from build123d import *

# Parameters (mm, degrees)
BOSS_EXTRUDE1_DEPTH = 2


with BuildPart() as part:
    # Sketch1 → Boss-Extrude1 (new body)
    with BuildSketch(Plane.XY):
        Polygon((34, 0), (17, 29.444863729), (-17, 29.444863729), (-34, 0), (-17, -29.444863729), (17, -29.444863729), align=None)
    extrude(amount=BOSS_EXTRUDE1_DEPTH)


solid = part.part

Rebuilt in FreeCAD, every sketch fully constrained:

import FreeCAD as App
import Part
import Sketcher
Q = App.Units.Quantity


def add_polygon(sketch, points):
    """Adds a closed chain of lines whose ends are joined by coincident constraints."""
    first, n = sketch.GeometryCount, len(points)
    for a, b in zip(points, points[1:] + points[:1]):
        sketch.addGeometry(Part.LineSegment(App.Vector(*a, 0), App.Vector(*b, 0)), False)
    for i in range(n):
        sketch.addConstraint(Sketcher.Constraint("Coincident", first + i, 2, first + (i + 1) % n, 1))

doc = App.newDocument("Part")
body = doc.addObject("PartDesign::Body", "Body")

# Sketch on XY plane
sketch1 = body.newObject("Sketcher::SketchObject", "Sketch")
sketch1.AttachmentSupport = (doc.getObject("XY_Plane"), [""])
sketch1.MapMode = "FlatFace"
add_polygon(sketch1, [(34, 0), (17, 29), (-17, 29), (-34, 0), (-17, -29), (17, -29)])  # lines 0-5
sketch1.addConstraint([
    Sketcher.Constraint("Horizontal", 1),
    Sketcher.Constraint("Horizontal", 4),
    Sketcher.Constraint("Symmetric", 0, 2, 3, 2, -1, 1),
    Sketcher.Constraint("Symmetric", 2, 2, 5, 2, -1, 1),
    Sketcher.Constraint("PointOnObject", 2, 2, -1),
    Sketcher.Constraint("Parallel", 2, 5),
    Sketcher.Constraint("Vertical", 1, 2, 3, 2),
    Sketcher.Constraint("DistanceX", 1, 2, 1, 1, Q("34 mm")),
    Sketcher.Constraint("Angle", 0, Q("120 deg")),
    Sketcher.Constraint("Distance", 0, Q("34 mm")),
])
pad1 = body.newObject("PartDesign::Pad", "Pad")
pad1.Profile = sketch1
pad1.Length = 2

doc.recompute()
